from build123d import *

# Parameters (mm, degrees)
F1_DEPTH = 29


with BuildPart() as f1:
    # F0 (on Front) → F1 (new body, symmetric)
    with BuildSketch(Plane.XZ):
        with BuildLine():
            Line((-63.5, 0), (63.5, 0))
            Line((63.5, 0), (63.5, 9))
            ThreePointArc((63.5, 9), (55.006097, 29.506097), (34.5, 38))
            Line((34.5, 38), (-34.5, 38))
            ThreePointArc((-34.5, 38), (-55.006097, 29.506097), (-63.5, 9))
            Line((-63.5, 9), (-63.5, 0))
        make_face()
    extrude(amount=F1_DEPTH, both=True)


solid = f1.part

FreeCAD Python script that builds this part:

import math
import FreeCAD as App
import Part
import Sketcher

V = App.Vector
Q = App.Units.Quantity

doc = App.newDocument("Part")
params = doc.addObject("Spreadsheet::Sheet", "Params")
for row, (alias, value) in enumerate([
    ("sketch1_radius", "28.999999 mm"),
    ("sketch1_width", "127 mm"),
    ("sketch1_height", "9 mm"),
    ("pad1_length", "58 mm"),
], start=1):
    params.set(f"A{row}", alias)
    params.set(f"B{row}", "=" + value)
    params.setAlias(f"B{row}", alias)

body = doc.addObject("PartDesign::Body", "Body")

# Sketch on XZ plane
sketch1 = body.newObject("Sketcher::SketchObject", "Sketch")
sketch1.AttachmentSupport = (doc.getObject("XZ_Plane"), [""])
sketch1.MapMode = "FlatFace"
sketch1.addGeometry(Part.LineSegment(V(-63.5, 0, 0), V(63.5, 0, 0)), False)
sketch1.addGeometry(Part.LineSegment(V(63.5, 0, 0), V(63.5, 9, 0)), False)
sketch1.addGeometry(Part.ArcOfCircle(Part.Circle(V(34.500001, 9.000001, 0), V(0, 0, 1), 28.999999), math.radians(-0.000002), math.radians(90.000002)), False)
sketch1.addGeometry(Part.LineSegment(V(34.5, 38, 0), V(-34.5, 38, 0)), False)
sketch1.addGeometry(Part.ArcOfCircle(Part.Circle(V(-34.500001, 9.000001, 0), V(0, 0, 1), 28.999999), math.radians(89.999998), math.radians(180.000002)), False)
sketch1.addGeometry(Part.LineSegment(V(-63.5, 9, 0), V(-63.5, 0, 0)), False)
sketch1.addConstraint(Sketcher.Constraint("Coincident", 0, 2, 1, 1))
sketch1.addConstraint(Sketcher.Constraint("Tangent", 1, 2, 2, 1))
sketch1.addConstraint(Sketcher.Constraint("Tangent", 2, 2, 3, 1))
sketch1.addConstraint(Sketcher.Constraint("Tangent", 3, 2, 4, 1))
sketch1.addConstraint(Sketcher.Constraint("Tangent", 4, 2, 5, 1))
sketch1.addConstraint(Sketcher.Constraint("Coincident", 5, 2, 0, 1))
sketch1.addConstraint(Sketcher.Constraint("Horizontal", 0))
sketch1.addConstraint(Sketcher.Constraint("Vertical", 1))
sketch1.addConstraint(Sketcher.Constraint("Horizontal", 3))
sketch1.addConstraint(Sketcher.Constraint("Vertical", 5))
sketch1.addConstraint(Sketcher.Constraint("Equal", 2, 4))
sketch1.addConstraint(Sketcher.Constraint("Symmetric", 0, 2, 5, 2, -1, 1))
sketch1.addConstraint(Sketcher.Constraint("Radius", 2, Q("28.999999 mm")))
sketch1.addConstraint(Sketcher.Constraint("DistanceX", 0, 1, 0, 2, Q("127 mm")))
sketch1.addConstraint(Sketcher.Constraint("DistanceY", 1, 1, 1, 2, Q("9 mm")))
sketch1.setExpression("Constraints[12]", "Params.sketch1_radius")
sketch1.setExpression("Constraints[13]", "Params.sketch1_width")
sketch1.setExpression("Constraints[14]", "Params.sketch1_height")
pad1 = body.newObject("PartDesign::Pad", "Pad")
pad1.Profile = sketch1
pad1.setExpression("Length", "Params.pad1_length")
pad1.Midplane = True

doc.recompute()
